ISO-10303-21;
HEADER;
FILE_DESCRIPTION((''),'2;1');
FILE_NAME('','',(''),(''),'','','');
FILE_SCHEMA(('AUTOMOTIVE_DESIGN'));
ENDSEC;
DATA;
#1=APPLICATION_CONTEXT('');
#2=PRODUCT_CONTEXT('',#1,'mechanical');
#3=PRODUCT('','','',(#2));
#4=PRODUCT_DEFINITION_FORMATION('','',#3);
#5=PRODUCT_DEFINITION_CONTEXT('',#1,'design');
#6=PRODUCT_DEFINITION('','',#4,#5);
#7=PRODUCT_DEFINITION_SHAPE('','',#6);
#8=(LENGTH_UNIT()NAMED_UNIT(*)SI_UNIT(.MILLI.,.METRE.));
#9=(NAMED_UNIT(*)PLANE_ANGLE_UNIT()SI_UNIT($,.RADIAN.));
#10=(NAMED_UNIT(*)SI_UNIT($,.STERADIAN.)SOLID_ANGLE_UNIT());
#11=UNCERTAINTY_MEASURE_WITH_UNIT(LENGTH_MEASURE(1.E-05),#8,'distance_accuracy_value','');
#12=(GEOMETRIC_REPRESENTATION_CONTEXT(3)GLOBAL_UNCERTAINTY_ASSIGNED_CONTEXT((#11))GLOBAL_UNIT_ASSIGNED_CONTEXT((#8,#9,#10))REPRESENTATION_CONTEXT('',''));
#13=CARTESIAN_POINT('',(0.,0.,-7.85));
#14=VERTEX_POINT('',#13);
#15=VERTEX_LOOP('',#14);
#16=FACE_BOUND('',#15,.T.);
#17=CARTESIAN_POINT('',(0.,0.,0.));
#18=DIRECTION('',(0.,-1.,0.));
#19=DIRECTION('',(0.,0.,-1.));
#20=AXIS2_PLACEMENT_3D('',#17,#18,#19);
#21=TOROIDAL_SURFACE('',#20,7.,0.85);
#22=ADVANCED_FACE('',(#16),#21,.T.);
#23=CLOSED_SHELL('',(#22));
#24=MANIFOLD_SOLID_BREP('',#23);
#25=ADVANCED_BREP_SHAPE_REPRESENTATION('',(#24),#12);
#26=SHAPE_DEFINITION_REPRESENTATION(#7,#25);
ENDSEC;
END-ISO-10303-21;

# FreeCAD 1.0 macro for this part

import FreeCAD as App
import Part
import Sketcher
from FreeCAD import Vector

doc = App.newDocument("Part")
body = doc.addObject("PartDesign::Body", "Body")

sketch1 = body.newObject("Sketcher::SketchObject", "Sketch")
sketch1.AttachmentSupport = (doc.getObject("XY_Plane"), [""])
sketch1.MapMode = "FlatFace"
sketch1.addGeometry(Part.Circle(Vector(-7, 0, 0), Vector(0, 0, 1), 0.8), False)
sketch1.addConstraint([
    Sketcher.Constraint("PointOnObject", 0, 3, -1),
    Sketcher.Constraint("Diameter", 0, 1.7),
    Sketcher.Constraint("DistanceX", 0, 3, -1, 1, 7.0),
])
revolution = body.newObject("PartDesign::Revolution", "Revolution")
revolution.Profile = sketch1
revolution.ReferenceAxis = (sketch1, ["V_Axis"])
revolution.Angle = 360

doc.recompute()
